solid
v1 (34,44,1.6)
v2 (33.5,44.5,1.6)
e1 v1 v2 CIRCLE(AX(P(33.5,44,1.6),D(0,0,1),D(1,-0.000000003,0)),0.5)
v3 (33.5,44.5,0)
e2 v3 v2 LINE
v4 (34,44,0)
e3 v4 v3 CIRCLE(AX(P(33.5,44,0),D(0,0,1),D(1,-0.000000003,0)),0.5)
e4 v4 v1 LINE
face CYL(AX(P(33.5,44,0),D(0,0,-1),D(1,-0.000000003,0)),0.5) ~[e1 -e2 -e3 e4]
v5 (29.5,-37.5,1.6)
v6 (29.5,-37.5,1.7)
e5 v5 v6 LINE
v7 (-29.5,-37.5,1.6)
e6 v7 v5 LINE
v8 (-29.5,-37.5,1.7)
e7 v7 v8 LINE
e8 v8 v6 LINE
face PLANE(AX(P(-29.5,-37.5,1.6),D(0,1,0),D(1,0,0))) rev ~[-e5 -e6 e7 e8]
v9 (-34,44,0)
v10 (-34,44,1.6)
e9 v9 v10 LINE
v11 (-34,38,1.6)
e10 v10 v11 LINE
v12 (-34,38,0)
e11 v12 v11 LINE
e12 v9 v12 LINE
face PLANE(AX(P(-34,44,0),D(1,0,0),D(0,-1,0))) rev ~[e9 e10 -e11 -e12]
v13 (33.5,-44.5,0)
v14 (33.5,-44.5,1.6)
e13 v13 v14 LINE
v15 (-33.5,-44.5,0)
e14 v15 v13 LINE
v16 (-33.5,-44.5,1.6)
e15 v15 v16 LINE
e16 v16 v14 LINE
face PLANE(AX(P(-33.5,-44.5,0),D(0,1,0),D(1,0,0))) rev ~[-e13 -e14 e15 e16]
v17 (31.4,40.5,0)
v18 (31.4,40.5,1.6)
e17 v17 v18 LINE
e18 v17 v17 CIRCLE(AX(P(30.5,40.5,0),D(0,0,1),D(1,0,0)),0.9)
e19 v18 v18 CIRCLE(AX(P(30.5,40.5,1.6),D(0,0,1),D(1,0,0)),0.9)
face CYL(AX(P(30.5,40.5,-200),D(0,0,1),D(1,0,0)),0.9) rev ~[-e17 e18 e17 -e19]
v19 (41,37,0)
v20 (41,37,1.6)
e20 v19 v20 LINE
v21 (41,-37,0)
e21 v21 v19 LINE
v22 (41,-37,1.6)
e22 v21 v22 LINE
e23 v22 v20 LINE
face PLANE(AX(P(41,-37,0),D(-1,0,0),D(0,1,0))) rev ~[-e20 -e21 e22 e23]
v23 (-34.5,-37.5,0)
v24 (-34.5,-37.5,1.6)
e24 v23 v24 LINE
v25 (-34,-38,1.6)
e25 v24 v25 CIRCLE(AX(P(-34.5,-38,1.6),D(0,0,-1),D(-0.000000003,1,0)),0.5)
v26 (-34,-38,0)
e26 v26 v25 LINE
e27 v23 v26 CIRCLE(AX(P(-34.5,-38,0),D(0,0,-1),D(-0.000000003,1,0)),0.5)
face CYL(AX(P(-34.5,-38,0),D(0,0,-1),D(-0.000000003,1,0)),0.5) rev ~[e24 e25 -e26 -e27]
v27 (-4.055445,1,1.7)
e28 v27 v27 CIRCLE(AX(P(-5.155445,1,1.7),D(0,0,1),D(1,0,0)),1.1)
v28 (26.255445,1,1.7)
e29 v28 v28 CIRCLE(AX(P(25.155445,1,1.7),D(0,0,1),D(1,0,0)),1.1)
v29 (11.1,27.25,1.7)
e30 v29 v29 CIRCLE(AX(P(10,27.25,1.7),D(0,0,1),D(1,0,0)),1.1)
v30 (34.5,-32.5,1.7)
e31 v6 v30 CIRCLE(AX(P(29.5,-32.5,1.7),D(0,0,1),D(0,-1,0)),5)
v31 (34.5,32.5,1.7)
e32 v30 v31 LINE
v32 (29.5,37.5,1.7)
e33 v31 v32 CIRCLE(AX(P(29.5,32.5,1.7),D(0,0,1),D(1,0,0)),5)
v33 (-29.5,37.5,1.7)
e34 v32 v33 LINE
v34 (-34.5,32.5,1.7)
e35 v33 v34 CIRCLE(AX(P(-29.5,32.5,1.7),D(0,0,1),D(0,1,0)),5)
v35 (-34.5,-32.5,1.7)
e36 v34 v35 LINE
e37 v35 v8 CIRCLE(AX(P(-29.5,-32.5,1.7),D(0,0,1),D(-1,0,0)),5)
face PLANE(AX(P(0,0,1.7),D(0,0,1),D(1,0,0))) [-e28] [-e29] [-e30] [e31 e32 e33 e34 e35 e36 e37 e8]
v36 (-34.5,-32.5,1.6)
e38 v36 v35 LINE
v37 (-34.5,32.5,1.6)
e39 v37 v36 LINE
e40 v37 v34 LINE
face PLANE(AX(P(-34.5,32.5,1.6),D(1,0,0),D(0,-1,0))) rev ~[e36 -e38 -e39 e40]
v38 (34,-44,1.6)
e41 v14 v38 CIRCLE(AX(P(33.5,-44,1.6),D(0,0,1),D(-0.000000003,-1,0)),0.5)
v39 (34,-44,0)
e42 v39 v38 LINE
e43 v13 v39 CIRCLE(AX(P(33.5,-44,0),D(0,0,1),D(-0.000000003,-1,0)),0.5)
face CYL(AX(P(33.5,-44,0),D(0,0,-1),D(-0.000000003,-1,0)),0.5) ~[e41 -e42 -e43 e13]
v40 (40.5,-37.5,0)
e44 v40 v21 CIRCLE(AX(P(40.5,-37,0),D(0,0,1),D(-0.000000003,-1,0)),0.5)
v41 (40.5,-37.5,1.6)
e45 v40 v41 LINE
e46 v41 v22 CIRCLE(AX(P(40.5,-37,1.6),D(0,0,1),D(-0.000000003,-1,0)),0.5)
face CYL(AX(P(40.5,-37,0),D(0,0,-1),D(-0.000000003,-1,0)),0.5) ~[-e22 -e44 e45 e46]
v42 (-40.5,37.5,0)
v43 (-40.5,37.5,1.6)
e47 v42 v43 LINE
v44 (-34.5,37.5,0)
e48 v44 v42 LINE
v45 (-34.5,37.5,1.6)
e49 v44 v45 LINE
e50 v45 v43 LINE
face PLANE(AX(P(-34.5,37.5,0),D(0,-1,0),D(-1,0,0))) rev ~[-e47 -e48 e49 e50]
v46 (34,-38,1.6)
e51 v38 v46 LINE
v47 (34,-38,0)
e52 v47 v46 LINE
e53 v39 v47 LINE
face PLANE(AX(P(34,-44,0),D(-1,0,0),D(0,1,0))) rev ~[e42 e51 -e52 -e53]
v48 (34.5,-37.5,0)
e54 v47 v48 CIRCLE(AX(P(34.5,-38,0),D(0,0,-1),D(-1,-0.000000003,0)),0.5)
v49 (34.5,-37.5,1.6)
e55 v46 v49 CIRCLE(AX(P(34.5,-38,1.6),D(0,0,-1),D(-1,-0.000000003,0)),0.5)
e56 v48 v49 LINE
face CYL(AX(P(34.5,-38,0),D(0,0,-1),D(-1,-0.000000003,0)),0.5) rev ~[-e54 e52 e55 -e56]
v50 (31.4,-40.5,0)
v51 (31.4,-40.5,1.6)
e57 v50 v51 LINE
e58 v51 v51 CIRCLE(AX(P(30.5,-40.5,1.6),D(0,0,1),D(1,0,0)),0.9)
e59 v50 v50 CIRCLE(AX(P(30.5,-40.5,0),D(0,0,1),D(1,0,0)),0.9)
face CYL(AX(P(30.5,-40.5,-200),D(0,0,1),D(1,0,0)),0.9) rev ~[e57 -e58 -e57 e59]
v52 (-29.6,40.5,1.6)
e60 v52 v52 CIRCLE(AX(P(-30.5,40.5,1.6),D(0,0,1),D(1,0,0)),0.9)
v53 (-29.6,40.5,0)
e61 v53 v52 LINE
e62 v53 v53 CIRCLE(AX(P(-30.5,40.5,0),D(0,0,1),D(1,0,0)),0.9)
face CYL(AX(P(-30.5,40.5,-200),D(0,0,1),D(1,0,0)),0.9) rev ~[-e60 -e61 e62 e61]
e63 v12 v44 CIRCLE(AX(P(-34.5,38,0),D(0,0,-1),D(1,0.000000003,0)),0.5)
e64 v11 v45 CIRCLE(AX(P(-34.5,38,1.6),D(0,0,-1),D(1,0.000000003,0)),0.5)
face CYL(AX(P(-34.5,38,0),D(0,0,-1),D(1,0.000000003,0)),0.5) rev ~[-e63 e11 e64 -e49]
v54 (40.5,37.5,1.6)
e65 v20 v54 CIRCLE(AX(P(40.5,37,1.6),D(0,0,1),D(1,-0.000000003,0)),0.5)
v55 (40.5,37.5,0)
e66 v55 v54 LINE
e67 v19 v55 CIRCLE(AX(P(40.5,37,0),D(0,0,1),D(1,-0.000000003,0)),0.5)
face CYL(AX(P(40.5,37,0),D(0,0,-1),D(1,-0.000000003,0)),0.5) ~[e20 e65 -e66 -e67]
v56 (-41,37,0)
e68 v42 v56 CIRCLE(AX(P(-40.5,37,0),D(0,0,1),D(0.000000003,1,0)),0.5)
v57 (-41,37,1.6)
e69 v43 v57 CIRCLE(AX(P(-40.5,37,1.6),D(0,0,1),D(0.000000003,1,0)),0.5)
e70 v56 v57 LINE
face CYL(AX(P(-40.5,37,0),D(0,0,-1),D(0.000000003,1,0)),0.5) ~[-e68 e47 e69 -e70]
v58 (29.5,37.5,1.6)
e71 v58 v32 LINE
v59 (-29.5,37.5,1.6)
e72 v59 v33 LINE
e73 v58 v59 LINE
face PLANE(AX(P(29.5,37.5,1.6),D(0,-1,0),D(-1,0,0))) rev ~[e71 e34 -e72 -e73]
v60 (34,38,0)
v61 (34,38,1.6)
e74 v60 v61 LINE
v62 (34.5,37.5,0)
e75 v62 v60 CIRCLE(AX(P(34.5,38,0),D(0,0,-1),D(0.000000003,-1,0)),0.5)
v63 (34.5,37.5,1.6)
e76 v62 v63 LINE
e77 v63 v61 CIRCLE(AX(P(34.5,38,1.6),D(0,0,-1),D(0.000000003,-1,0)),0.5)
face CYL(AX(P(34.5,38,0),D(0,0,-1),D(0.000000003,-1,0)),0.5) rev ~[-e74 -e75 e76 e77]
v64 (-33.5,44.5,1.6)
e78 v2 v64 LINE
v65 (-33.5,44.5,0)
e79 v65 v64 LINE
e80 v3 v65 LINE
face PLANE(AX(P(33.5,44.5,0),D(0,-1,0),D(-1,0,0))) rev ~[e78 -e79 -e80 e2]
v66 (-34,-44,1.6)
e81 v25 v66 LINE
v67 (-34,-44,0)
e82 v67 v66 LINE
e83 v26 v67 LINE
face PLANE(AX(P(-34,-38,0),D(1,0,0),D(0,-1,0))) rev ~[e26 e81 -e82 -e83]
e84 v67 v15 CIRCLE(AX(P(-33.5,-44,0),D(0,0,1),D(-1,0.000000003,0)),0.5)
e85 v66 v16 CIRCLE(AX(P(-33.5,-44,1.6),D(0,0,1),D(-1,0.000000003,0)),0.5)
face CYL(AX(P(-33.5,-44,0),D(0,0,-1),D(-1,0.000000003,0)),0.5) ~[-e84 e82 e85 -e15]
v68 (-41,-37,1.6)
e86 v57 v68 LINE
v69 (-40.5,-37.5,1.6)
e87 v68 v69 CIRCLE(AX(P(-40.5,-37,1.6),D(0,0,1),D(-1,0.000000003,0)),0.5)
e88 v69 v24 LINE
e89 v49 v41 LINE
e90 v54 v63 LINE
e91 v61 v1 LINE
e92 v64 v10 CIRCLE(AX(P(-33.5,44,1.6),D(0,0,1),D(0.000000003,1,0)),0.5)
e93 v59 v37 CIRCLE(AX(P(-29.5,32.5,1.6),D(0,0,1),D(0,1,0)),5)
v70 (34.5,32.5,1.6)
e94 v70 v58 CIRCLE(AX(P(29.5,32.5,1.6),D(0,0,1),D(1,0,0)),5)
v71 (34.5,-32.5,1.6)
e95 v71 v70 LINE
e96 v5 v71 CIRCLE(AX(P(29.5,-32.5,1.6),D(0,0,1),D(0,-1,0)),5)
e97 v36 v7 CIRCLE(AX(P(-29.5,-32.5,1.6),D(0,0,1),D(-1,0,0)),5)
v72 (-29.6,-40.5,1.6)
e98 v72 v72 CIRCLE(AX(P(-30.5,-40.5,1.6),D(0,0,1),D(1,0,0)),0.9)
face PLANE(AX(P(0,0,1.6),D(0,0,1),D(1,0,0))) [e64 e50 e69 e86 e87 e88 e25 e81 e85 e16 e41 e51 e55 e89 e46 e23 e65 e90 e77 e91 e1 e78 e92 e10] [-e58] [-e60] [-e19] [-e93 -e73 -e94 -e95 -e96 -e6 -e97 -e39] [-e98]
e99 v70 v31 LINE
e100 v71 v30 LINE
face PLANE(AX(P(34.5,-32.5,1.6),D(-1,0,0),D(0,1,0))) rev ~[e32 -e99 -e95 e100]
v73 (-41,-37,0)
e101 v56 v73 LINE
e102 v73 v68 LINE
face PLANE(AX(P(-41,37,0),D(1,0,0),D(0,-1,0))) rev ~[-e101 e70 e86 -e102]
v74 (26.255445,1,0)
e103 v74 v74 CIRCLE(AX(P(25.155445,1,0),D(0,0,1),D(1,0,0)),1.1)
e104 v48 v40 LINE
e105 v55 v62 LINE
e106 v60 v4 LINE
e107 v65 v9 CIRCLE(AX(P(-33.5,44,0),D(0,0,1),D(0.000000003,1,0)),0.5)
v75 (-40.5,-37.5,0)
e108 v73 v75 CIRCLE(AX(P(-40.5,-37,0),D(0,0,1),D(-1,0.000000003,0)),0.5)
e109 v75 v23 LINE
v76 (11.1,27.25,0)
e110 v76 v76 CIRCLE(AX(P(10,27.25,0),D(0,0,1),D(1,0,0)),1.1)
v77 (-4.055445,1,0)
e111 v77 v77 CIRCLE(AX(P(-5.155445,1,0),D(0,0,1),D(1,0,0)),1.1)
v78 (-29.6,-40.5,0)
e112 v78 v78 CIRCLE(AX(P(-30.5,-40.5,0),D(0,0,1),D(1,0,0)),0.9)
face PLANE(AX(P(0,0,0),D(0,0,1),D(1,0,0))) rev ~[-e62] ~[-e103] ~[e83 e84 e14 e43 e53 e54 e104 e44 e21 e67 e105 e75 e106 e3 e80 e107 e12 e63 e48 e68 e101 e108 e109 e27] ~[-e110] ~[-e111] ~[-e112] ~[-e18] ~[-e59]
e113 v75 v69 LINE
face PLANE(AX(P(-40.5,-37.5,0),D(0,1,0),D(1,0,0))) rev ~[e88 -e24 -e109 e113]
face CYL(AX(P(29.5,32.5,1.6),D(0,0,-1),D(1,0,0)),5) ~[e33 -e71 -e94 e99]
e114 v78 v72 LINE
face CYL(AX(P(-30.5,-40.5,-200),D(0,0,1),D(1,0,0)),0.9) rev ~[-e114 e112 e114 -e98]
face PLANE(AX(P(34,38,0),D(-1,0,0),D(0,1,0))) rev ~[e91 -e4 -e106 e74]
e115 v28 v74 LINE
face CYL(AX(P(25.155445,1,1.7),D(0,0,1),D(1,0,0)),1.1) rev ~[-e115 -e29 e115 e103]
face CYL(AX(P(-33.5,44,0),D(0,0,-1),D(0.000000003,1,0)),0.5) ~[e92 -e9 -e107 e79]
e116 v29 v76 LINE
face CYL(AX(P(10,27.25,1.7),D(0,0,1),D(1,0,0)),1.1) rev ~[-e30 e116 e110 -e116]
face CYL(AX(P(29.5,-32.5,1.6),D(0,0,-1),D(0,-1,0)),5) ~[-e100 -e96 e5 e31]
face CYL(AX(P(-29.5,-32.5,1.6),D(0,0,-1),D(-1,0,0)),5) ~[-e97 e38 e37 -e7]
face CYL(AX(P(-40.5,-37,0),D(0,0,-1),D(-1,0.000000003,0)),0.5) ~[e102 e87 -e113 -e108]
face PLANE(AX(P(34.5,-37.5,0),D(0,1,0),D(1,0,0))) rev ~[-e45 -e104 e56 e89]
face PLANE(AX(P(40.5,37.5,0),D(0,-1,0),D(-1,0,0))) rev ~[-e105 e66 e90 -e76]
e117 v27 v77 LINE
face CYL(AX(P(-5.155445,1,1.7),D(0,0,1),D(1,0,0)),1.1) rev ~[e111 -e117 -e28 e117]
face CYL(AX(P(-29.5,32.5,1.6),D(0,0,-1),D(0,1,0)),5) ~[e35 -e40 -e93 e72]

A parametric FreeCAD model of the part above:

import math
import FreeCAD as App
import Part
import Sketcher
from FreeCAD import Vector
Q = App.Units.Quantity

doc = App.newDocument("Part")
body = doc.addObject("PartDesign::Body", "Body")

sketch1 = body.newObject("Sketcher::SketchObject", "Sketch")
sketch1.AttachmentSupport = (doc.getObject("XY_Plane"), [""])
sketch1.MapMode = "FlatFace"
sketch1.addGeometry(Part.LineSegment(Vector(-34, 44, 0), Vector(-34, 38, 0)), False)
sketch1.addGeometry(Part.ArcOfCircle(Part.Circle(Vector(-34.5, 38, 0), Vector(0, 0, 1), 0.5), math.radians(-90), math.radians(0)), False)
sketch1.addGeometry(Part.LineSegment(Vector(-34.5, 37.5, 0), Vector(-40.5, 37.5, 0)), False)
sketch1.addGeometry(Part.ArcOfCircle(Part.Circle(Vector(-40.5, 37, 0), Vector(0, 0, 1), 0.5), math.radians(90), math.radians(180)), False)
sketch1.addGeometry(Part.LineSegment(Vector(-41, 37, 0), Vector(-41, -37, 0)), False)
sketch1.addGeometry(Part.ArcOfCircle(Part.Circle(Vector(-40.5, -37, 0), Vector(0, 0, 1), 0.5), math.radians(180), math.radians(270)), False)
sketch1.addGeometry(Part.LineSegment(Vector(-40.5, -37.5, 0), Vector(-34.5, -37.5, 0)), False)
sketch1.addGeometry(Part.ArcOfCircle(Part.Circle(Vector(-34.5, -38, 0), Vector(0, 0, 1), 0.5), math.radians(0), math.radians(90)), False)
sketch1.addGeometry(Part.LineSegment(Vector(-34, -38, 0), Vector(-34, -44, 0)), False)
sketch1.addGeometry(Part.ArcOfCircle(Part.Circle(Vector(-33.5, -44, 0), Vector(0, 0, 1), 0.5), math.radians(180), math.radians(270)), False)
sketch1.addGeometry(Part.LineSegment(Vector(-33.5, -44.5, 0), Vector(33.5, -44.5, 0)), False)
sketch1.addGeometry(Part.ArcOfCircle(Part.Circle(Vector(33.5, -44, 0), Vector(0, 0, 1), 0.5), math.radians(-90), math.radians(0)), False)
sketch1.addGeometry(Part.LineSegment(Vector(34, -44, 0), Vector(34, -38, 0)), False)
sketch1.addGeometry(Part.ArcOfCircle(Part.Circle(Vector(34.5, -38, 0), Vector(0, 0, 1), 0.5), math.radians(90), math.radians(180)), False)
sketch1.addGeometry(Part.LineSegment(Vector(34.5, -37.5, 0), Vector(40.5, -37.5, 0)), False)
sketch1.addGeometry(Part.ArcOfCircle(Part.Circle(Vector(40.5, -37, 0), Vector(0, 0, 1), 0.5), math.radians(-90), math.radians(0)), False)
sketch1.addGeometry(Part.LineSegment(Vector(41, -37, 0), Vector(41, 37, 0)), False)
sketch1.addGeometry(Part.ArcOfCircle(Part.Circle(Vector(40.5, 37, 0), Vector(0, 0, 1), 0.5), math.radians(0), math.radians(90)), False)
sketch1.addGeometry(Part.LineSegment(Vector(40.5, 37.5, 0), Vector(34.5, 37.5, 0)), False)
sketch1.addGeometry(Part.ArcOfCircle(Part.Circle(Vector(34.5, 38, 0), Vector(0, 0, 1), 0.5), math.radians(180), math.radians(270)), False)
sketch1.addGeometry(Part.LineSegment(Vector(34, 38, 0), Vector(34, 44, 0)), False)
sketch1.addGeometry(Part.ArcOfCircle(Part.Circle(Vector(33.5, 44, 0), Vector(0, 0, 1), 0.5), math.radians(0), math.radians(90)), False)
sketch1.addGeometry(Part.LineSegment(Vector(33.5, 44.5, 0), Vector(-33.5, 44.5, 0)), False)
sketch1.addGeometry(Part.ArcOfCircle(Part.Circle(Vector(-33.5, 44, 0), Vector(0, 0, 1), 0.5), math.radians(90), math.radians(180)), False)
sketch1.addConstraint(Sketcher.Constraint("Tangent", 0, 2, 1, 2))
sketch1.addConstraint(Sketcher.Constraint("Tangent", 1, 1, 2, 1))
sketch1.addConstraint(Sketcher.Constraint("Tangent", 2, 2, 3, 1))
sketch1.addConstraint(Sketcher.Constraint("Tangent", 3, 2, 4, 1))
sketch1.addConstraint(Sketcher.Constraint("Tangent", 4, 2, 5, 1))
sketch1.addConstraint(Sketcher.Constraint("Tangent", 5, 2, 6, 1))
sketch1.addConstraint(Sketcher.Constraint("Tangent", 6, 2, 7, 2))
sketch1.addConstraint(Sketcher.Constraint("Tangent", 7, 1, 8, 1))
sketch1.addConstraint(Sketcher.Constraint("Tangent", 8, 2, 9, 1))
sketch1.addConstraint(Sketcher.Constraint("Tangent", 9, 2, 10, 1))
sketch1.addConstraint(Sketcher.Constraint("Tangent", 10, 2, 11, 1))
sketch1.addConstraint(Sketcher.Constraint("Tangent", 11, 2, 12, 1))
sketch1.addConstraint(Sketcher.Constraint("Tangent", 12, 2, 13, 2))
sketch1.addConstraint(Sketcher.Constraint("Tangent", 13, 1, 14, 1))
sketch1.addConstraint(Sketcher.Constraint("Tangent", 14, 2, 15, 1))
sketch1.addConstraint(Sketcher.Constraint("Tangent", 15, 2, 16, 1))
sketch1.addConstraint(Sketcher.Constraint("Tangent", 16, 2, 17, 1))
sketch1.addConstraint(Sketcher.Constraint("Tangent", 17, 2, 18, 1))
sketch1.addConstraint(Sketcher.Constraint("Tangent", 18, 2, 19, 2))
sketch1.addConstraint(Sketcher.Constraint("Tangent", 19, 1, 20, 1))
sketch1.addConstraint(Sketcher.Constraint("Tangent", 20, 2, 21, 1))
sketch1.addConstraint(Sketcher.Constraint("Tangent", 21, 2, 22, 1))
sketch1.addConstraint(Sketcher.Constraint("Tangent", 22, 2, 23, 1))
sketch1.addConstraint(Sketcher.Constraint("Tangent", 23, 2, 0, 1))
sketch1.addConstraint(Sketcher.Constraint("Vertical", 0))
sketch1.addConstraint(Sketcher.Constraint("Horizontal", 2))
sketch1.addConstraint(Sketcher.Constraint("Vertical", 4))
sketch1.addConstraint(Sketcher.Constraint("Horizontal", 6))
sketch1.addConstraint(Sketcher.Constraint("Vertical", 8))
sketch1.addConstraint(Sketcher.Constraint("Horizontal", 10))
sketch1.addConstraint(Sketcher.Constraint("Vertical", 12))
sketch1.addConstraint(Sketcher.Constraint("Horizontal", 14))
sketch1.addConstraint(Sketcher.Constraint("Vertical", 16))
sketch1.addConstraint(Sketcher.Constraint("Horizontal", 18))
sketch1.addConstraint(Sketcher.Constraint("Vertical", 20))
sketch1.addConstraint(Sketcher.Constraint("Horizontal", 22))
sketch1.addConstraint(Sketcher.Constraint("Equal", 1, 3))
sketch1.addConstraint(Sketcher.Constraint("Equal", 3, 5))
sketch1.addConstraint(Sketcher.Constraint("Equal", 5, 7))
sketch1.addConstraint(Sketcher.Constraint("Equal", 7, 9))
sketch1.addConstraint(Sketcher.Constraint("Equal", 9, 11))
sketch1.addConstraint(Sketcher.Constraint("Equal", 11, 13))
sketch1.addConstraint(Sketcher.Constraint("Equal", 13, 15))
sketch1.addConstraint(Sketcher.Constraint("Equal", 15, 17))
sketch1.addConstraint(Sketcher.Constraint("Equal", 17, 19))
sketch1.addConstraint(Sketcher.Constraint("Equal", 19, 21))
sketch1.addConstraint(Sketcher.Constraint("Equal", 21, 23))
sketch1.addConstraint(Sketcher.Constraint("Symmetric", 1, 3, 13, 3, -1, 1))
sketch1.addConstraint(Sketcher.Constraint("Symmetric", 5, 3, 17, 3, -1, 1))
sketch1.addConstraint(Sketcher.Constraint("Symmetric", 9, 3, 21, 3, -1, 1))
sketch1.addConstraint(Sketcher.Constraint("Symmetric", 7, 3, 13, 3, -2))
sketch1.addConstraint(Sketcher.Constraint("Equal", 18, 0))
sketch1.addConstraint(Sketcher.Constraint("Radius", 1, Q("0.5 mm")))
sketch1.addConstraint(Sketcher.Constraint("DistanceX", 2, 2, 2, 1, Q("6 mm")))
sketch1.addConstraint(Sketcher.Constraint("DistanceX", 10, 1, 10, 2, Q("67 mm")))
sketch1.addConstraint(Sketcher.Constraint("DistanceY", 4, 2, 4, 1, Q("74 mm")))
pad1 = body.newObject("PartDesign::Pad", "Pad")
pad1.Profile = sketch1
pad1.Length = 1.6

sketch2 = body.newObject("Sketcher::SketchObject", "Sketch001")
sketch2.AttachmentSupport = (doc.getObject("XY_Plane"), [""])
sketch2.MapMode = "FlatFace"
sketch2.AttachmentOffset = App.Placement(Vector(0, 0, 1.6), App.Rotation())
sketch2.addGeometry(Part.LineSegment(Vector(-30, -38, 0), Vector(30, -38, 0)), False)
sketch2.addGeometry(Part.ArcOfCircle(Part.Circle(Vector(30, -32, 0), Vector(0, 0, 1), 5), math.radians(-90), math.radians(0)), False)
sketch2.addGeometry(Part.LineSegment(Vector(34, -32, 0), Vector(34, 32, 0)), False)
sketch2.addGeometry(Part.ArcOfCircle(Part.Circle(Vector(30, 32, 0), Vector(0, 0, 1), 5), math.radians(0), math.radians(90)), False)
sketch2.addGeometry(Part.LineSegment(Vector(30, 38, 0), Vector(-30, 38, 0)), False)
sketch2.addGeometry(Part.ArcOfCircle(Part.Circle(Vector(-30, 32, 0), Vector(0, 0, 1), 5), math.radians(90), math.radians(180)), False)
sketch2.addGeometry(Part.LineSegment(Vector(-34, 32, 0), Vector(-34, -32, 0)), False)
sketch2.addGeometry(Part.ArcOfCircle(Part.Circle(Vector(-30, -32, 0), Vector(0, 0, 1), 5), math.radians(180), math.radians(270)), False)
sketch2.addConstraint(Sketcher.Constraint("Tangent", 0, 2, 1, 1))
sketch2.addConstraint(Sketcher.Constraint("Tangent", 1, 2, 2, 1))
sketch2.addConstraint(Sketcher.Constraint("Tangent", 2, 2, 3, 1))
sketch2.addConstraint(Sketcher.Constraint("Tangent", 3, 2, 4, 1))
sketch2.addConstraint(Sketcher.Constraint("Tangent", 4, 2, 5, 1))
sketch2.addConstraint(Sketcher.Constraint("Tangent", 5, 2, 6, 1))
sketch2.addConstraint(Sketcher.Constraint("Tangent", 6, 2, 7, 1))
sketch2.addConstraint(Sketcher.Constraint("Tangent", 7, 2, 0, 1))
sketch2.addConstraint(Sketcher.Constraint("Horizontal", 0))
sketch2.addConstraint(Sketcher.Constraint("Vertical", 2))
sketch2.addConstraint(Sketcher.Constraint("Horizontal", 4))
sketch2.addConstraint(Sketcher.Constraint("Vertical", 6))
sketch2.addConstraint(Sketcher.Constraint("Equal", 1, 3))
sketch2.addConstraint(Sketcher.Constraint("Equal", 3, 5))
sketch2.addConstraint(Sketcher.Constraint("Equal", 5, 7))
sketch2.addConstraint(Sketcher.Constraint("Symmetric", 1, 3, 5, 3, -1, 1))
sketch2.addConstraint(Sketcher.Constraint("Radius", 1, Q("5 mm")))
sketch2.addConstraint(Sketcher.Constraint("DistanceX", 0, 1, 0, 2, Q("59 mm")))
sketch2.addConstraint(Sketcher.Constraint("DistanceY", 2, 1, 2, 2, Q("65 mm")))
pad2 = body.newObject("PartDesign::Pad", "Pad001")
pad2.Profile = sketch2
pad2.Length = 0.1

sketch3 = body.newObject("Sketcher::SketchObject", "Sketch002")
sketch3.AttachmentSupport = (doc.getObject("XY_Plane"), [""])
sketch3.MapMode = "FlatFace"
sketch3.addGeometry(Part.Circle(Vector(30.5, 40.5, 0), Vector(0, 0, 1), 0.9), False)
sketch3.addGeometry(Part.Circle(Vector(-30.5, 40.5, 0), Vector(0, 0, 1), 0.9), False)
sketch3.addGeometry(Part.Circle(Vector(30.5, -40.5, 0), Vector(0, 0, 1), 0.9), False)
sketch3.addGeometry(Part.Circle(Vector(-30.5, -40.5, 0), Vector(0, 0, 1), 0.9), False)
sketch3.addConstraint(Sketcher.Constraint("Equal", 0, 1))
sketch3.addConstraint(Sketcher.Constraint("Equal", 1, 2))
sketch3.addConstraint(Sketcher.Constraint("Equal", 2, 3))
sketch3.addConstraint(Sketcher.Constraint("Symmetric", 1, 3, 2, 3, -1, 1))
sketch3.addConstraint(Sketcher.Constraint("Symmetric", 0, 3, 3, 3, -1, 1))
sketch3.addConstraint(Sketcher.Constraint("Symmetric", 0, 3, 1, 3, -2))
sketch3.addConstraint(Sketcher.Constraint("Diameter", 0, Q("1.8 mm")))
sketch3.addConstraint(Sketcher.Constraint("DistanceX", 1, 3, 0, 3, Q("61 mm")))
sketch3.addConstraint(Sketcher.Constraint("DistanceY", 2, 3, 0, 3, Q("81 mm")))
doc.recompute()
hole = body.newObject("PartDesign::Hole", "Hole")
hole.Profile = sketch3
hole.ThreadType = "None"
hole.Diameter = 1.8
hole.DepthType = "Dimension"
hole.Depth = 200
hole.DrillPoint = "Angled"
hole.DrillPointAngle = 118
hole.Reversed = True

sketch4 = body.newObject("Sketcher::SketchObject", "Sketch003")
sketch4.AttachmentSupport = (doc.getObject("XY_Plane"), [""])
sketch4.MapMode = "FlatFace"
sketch4.AttachmentOffset = App.Placement(Vector(0, 0, 1.7), App.Rotation())
sketch4.addGeometry(Part.Circle(Vector(25.2, 1, 0), Vector(0, 0, 1), 1.1), False)
sketch4.addGeometry(Part.Circle(Vector(10, 27.2, 0), Vector(0, 0, 1), 1.1), False)
sketch4.addGeometry(Part.Circle(Vector(-5.2, 1, 0), Vector(0, 0, 1), 1.1), False)
sketch4.addConstraint(Sketcher.Constraint("Equal", 0, 1))
sketch4.addConstraint(Sketcher.Constraint("Equal", 1, 2))
sketch4.addConstraint(Sketcher.Constraint("Horizontal", 0, 3, 2, 3))
sketch4.addConstraint(Sketcher.Constraint("Diameter", 0, Q("2.2 mm")))
sketch4.addConstraint(Sketcher.Constraint("DistanceY", -1, 1, 0, 3, Q("1 mm")))
sketch4.addConstraint(Sketcher.Constraint("DistanceX", -1, 1, 1, 3, Q("10 mm")))
sketch4.addConstraint(Sketcher.Constraint("DistanceY", -1, 1, 1, 3, Q("27.25 mm")))
sketch4.addConstraint(Sketcher.Constraint("DistanceX", 2, 3, 0, 3, Q("30.310889 mm")))
sketch4.addConstraint(Sketcher.Constraint("DistanceX", -1, 1, 0, 3, Q("25.155445 mm")))
pocket1 = body.newObject("PartDesign::Pocket", "Pocket")
pocket1.Profile = sketch4
pocket1.Length = 1.7

doc.recompute()
